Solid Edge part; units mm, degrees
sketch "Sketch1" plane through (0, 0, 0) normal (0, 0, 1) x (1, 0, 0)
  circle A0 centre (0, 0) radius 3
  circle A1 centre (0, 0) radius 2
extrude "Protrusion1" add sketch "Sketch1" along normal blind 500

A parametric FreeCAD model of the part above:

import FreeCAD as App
import Part
import Sketcher

doc = App.newDocument("Part")
params = doc.addObject("Spreadsheet::Sheet", "Params")
for row, (alias, value) in enumerate([
    ("sketch1_diameter", "6 mm"),
    ("sketch1_diameter2", "4 mm"),
    ("pad1_length", "500 mm"),
], start=1):
    params.set(f"A{row}", alias)
    params.set(f"B{row}", "=" + value)
    params.setAlias(f"B{row}", alias)

body = doc.addObject("PartDesign::Body", "Body")

sketch1 = body.newObject("Sketcher::SketchObject", "Sketch")
sketch1.AttachmentSupport = (doc.getObject("XY_Plane"), [""])
sketch1.MapMode = "FlatFace"
sketch1.addGeometry([
    Part.Circle(App.Vector(0, 0, 0), App.Vector(0, 0, 1), 3),
    Part.Circle(App.Vector(0, 0, 0), App.Vector(0, 0, 1), 2),
], False)
sketch1.addConstraint([
    Sketcher.Constraint("Coincident", 0, 3, -1, 1),
    Sketcher.Constraint("Coincident", 1, 3, -1, 1),
    Sketcher.Constraint("Diameter", 0, 6.0),
    Sketcher.Constraint("Diameter", 1, 4.0),
])
sketch1.setExpression("Constraints[2]", "Params.sketch1_diameter")
sketch1.setExpression("Constraints[3]", "Params.sketch1_diameter2")
pad1 = body.newObject("PartDesign::Pad", "Pad")
pad1.Profile = sketch1
pad1.setExpression("Length", "Params.pad1_length")

doc.recompute()
